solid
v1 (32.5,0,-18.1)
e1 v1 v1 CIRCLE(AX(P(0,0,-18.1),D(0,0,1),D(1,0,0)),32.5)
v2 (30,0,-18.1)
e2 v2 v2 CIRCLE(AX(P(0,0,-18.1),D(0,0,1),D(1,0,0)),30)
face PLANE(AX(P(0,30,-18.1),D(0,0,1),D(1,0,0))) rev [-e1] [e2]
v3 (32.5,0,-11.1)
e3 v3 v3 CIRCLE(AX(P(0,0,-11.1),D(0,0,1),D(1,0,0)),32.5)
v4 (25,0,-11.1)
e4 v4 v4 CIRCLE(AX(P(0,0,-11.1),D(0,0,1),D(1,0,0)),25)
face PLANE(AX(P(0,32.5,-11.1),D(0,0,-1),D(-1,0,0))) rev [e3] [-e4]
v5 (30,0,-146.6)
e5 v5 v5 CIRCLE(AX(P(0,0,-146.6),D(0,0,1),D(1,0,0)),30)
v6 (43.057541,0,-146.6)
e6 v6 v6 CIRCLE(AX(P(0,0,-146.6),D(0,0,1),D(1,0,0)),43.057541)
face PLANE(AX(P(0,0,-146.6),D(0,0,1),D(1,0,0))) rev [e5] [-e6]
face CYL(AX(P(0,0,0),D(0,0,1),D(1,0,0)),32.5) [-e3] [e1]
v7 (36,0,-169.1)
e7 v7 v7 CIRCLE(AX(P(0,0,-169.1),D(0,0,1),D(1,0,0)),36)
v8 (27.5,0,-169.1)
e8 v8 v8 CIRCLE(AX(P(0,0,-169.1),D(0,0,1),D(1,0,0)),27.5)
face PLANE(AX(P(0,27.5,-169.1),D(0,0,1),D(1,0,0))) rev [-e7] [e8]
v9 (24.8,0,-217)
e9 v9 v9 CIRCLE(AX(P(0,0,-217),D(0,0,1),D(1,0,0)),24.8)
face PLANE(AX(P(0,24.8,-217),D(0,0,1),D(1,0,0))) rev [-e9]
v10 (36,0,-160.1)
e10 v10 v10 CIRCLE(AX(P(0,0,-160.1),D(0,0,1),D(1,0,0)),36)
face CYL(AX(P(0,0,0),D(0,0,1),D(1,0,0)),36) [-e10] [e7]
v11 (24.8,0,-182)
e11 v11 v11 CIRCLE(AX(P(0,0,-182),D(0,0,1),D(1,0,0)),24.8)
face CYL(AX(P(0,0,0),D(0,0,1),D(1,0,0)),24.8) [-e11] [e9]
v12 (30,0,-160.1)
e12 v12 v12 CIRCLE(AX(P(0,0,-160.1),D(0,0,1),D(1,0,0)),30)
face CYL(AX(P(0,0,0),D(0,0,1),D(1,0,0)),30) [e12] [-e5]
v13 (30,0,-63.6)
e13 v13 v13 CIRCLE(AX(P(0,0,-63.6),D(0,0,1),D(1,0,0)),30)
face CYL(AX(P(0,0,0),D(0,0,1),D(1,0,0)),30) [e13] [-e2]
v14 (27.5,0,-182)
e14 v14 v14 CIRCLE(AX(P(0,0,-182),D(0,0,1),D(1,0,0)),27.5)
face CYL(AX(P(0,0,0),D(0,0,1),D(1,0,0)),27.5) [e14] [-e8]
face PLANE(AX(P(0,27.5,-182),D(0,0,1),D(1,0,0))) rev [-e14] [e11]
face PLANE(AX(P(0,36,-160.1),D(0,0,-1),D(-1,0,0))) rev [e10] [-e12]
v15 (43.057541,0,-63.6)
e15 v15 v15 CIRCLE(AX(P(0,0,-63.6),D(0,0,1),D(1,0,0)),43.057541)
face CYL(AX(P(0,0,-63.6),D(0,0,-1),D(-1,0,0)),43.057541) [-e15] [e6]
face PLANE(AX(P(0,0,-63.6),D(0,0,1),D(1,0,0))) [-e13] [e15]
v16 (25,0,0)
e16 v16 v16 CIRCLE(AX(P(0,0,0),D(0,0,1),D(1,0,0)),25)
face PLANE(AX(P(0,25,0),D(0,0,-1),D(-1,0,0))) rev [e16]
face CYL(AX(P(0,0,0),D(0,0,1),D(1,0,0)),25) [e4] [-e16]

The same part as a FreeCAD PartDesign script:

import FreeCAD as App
import Part
import Sketcher
from FreeCAD import Vector
Q = App.Units.Quantity


def add_polygon(sketch, points):
    """Adds a closed chain of lines whose ends are joined by coincident constraints."""
    first, n = sketch.GeometryCount, len(points)
    for a, b in zip(points, points[1:] + points[:1]):
        sketch.addGeometry(Part.LineSegment(App.Vector(*a, 0), App.Vector(*b, 0)), False)
    for i in range(n):
        sketch.addConstraint(Sketcher.Constraint("Coincident", first + i, 2, first + (i + 1) % n, 1))

doc = App.newDocument("Part")
body = doc.addObject("PartDesign::Body", "Body")

# Sketch on YZ plane
sketch1 = body.newObject("Sketcher::SketchObject", "Sketch")
sketch1.AttachmentSupport = (doc.getObject("YZ_Plane"), [""])
sketch1.MapMode = "FlatFace"
add_polygon(sketch1, [(0, 0), (0, -217), (24.8, -217), (24.8, -182), (27.5, -182), (27.5, -169.1), (36, -169.1), (36, -160.1), (30, -160.1), (30, -18.1), (32.5, -18.1), (32.5, -11.1), (25, -11.1), (25, 0)])  # lines 0-13
sketch1.addConstraint(Sketcher.Constraint("Vertical", 0))
sketch1.addConstraint(Sketcher.Constraint("Horizontal", 1))
sketch1.addConstraint(Sketcher.Constraint("Vertical", 2))
sketch1.addConstraint(Sketcher.Constraint("Horizontal", 3))
sketch1.addConstraint(Sketcher.Constraint("Vertical", 4))
sketch1.addConstraint(Sketcher.Constraint("Horizontal", 5))
sketch1.addConstraint(Sketcher.Constraint("Vertical", 6))
sketch1.addConstraint(Sketcher.Constraint("Horizontal", 7))
sketch1.addConstraint(Sketcher.Constraint("Vertical", 8))
sketch1.addConstraint(Sketcher.Constraint("Horizontal", 9))
sketch1.addConstraint(Sketcher.Constraint("Vertical", 10))
sketch1.addConstraint(Sketcher.Constraint("Horizontal", 11))
sketch1.addConstraint(Sketcher.Constraint("Vertical", 12))
sketch1.addConstraint(Sketcher.Constraint("Horizontal", 13))
sketch1.addConstraint(Sketcher.Constraint("Coincident", 13, 2, -1, 1))
sketch1.addConstraint(Sketcher.Constraint("DistanceX", 7, 2, 7, 1, Q("6 mm")))
sketch1.addConstraint(Sketcher.Constraint("DistanceX", 13, 2, 13, 1, Q("25 mm")))
sketch1.addConstraint(Sketcher.Constraint("DistanceY", 0, 2, 0, 1, Q("217 mm")))
sketch1.addConstraint(Sketcher.Constraint("DistanceY", 2, 1, 2, 2, Q("35 mm")))
sketch1.addConstraint(Sketcher.Constraint("DistanceY", 6, 1, 6, 2, Q("9 mm")))
sketch1.addConstraint(Sketcher.Constraint("DistanceY", 8, 1, 8, 2, Q("142 mm")))
sketch1.addConstraint(Sketcher.Constraint("DistanceY", 10, 1, 10, 2, Q("7 mm")))
sketch1.addConstraint(Sketcher.Constraint("DistanceX", 1, 1, 1, 2, Q("24.8 mm")))
sketch1.addConstraint(Sketcher.Constraint("DistanceX", 3, 1, 3, 2, Q("2.7 mm")))
sketch1.addConstraint(Sketcher.Constraint("DistanceX", 5, 1, 5, 2, Q("8.5 mm")))
sketch1.addConstraint(Sketcher.Constraint("DistanceX", 9, 1, 9, 2, Q("2.5 mm")))
sketch1.addConstraint(Sketcher.Constraint("DistanceY", 4, 1, 4, 2, Q("12.9 mm")))
revolution = body.newObject("PartDesign::Revolution", "Revolution")
revolution.Profile = sketch1
revolution.ReferenceAxis = (sketch1, ["V_Axis"])
revolution.Angle = 360

# Sketch on XY plane
sketch2 = body.newObject("Sketcher::SketchObject", "Sketch001")
sketch2.AttachmentSupport = (doc.getObject("XY_Plane"), [""])
sketch2.MapMode = "FlatFace"
sketch2.AttachmentOffset = App.Placement(Vector(0, 0, -105.1), App.Rotation())
sketch2.addGeometry(Part.Circle(Vector(0, 0, 0), Vector(0, 0, 1), 43), False)
sketch2.addConstraint(Sketcher.Constraint("Coincident", 0, 3, -1, 1))
sketch2.addConstraint(Sketcher.Constraint("Diameter", 0, Q("86.115082 mm")))
pad1 = body.newObject("PartDesign::Pad", "Pad")
pad1.Profile = sketch2
pad1.Length = 83
pad1.Midplane = True

doc.recompute()
